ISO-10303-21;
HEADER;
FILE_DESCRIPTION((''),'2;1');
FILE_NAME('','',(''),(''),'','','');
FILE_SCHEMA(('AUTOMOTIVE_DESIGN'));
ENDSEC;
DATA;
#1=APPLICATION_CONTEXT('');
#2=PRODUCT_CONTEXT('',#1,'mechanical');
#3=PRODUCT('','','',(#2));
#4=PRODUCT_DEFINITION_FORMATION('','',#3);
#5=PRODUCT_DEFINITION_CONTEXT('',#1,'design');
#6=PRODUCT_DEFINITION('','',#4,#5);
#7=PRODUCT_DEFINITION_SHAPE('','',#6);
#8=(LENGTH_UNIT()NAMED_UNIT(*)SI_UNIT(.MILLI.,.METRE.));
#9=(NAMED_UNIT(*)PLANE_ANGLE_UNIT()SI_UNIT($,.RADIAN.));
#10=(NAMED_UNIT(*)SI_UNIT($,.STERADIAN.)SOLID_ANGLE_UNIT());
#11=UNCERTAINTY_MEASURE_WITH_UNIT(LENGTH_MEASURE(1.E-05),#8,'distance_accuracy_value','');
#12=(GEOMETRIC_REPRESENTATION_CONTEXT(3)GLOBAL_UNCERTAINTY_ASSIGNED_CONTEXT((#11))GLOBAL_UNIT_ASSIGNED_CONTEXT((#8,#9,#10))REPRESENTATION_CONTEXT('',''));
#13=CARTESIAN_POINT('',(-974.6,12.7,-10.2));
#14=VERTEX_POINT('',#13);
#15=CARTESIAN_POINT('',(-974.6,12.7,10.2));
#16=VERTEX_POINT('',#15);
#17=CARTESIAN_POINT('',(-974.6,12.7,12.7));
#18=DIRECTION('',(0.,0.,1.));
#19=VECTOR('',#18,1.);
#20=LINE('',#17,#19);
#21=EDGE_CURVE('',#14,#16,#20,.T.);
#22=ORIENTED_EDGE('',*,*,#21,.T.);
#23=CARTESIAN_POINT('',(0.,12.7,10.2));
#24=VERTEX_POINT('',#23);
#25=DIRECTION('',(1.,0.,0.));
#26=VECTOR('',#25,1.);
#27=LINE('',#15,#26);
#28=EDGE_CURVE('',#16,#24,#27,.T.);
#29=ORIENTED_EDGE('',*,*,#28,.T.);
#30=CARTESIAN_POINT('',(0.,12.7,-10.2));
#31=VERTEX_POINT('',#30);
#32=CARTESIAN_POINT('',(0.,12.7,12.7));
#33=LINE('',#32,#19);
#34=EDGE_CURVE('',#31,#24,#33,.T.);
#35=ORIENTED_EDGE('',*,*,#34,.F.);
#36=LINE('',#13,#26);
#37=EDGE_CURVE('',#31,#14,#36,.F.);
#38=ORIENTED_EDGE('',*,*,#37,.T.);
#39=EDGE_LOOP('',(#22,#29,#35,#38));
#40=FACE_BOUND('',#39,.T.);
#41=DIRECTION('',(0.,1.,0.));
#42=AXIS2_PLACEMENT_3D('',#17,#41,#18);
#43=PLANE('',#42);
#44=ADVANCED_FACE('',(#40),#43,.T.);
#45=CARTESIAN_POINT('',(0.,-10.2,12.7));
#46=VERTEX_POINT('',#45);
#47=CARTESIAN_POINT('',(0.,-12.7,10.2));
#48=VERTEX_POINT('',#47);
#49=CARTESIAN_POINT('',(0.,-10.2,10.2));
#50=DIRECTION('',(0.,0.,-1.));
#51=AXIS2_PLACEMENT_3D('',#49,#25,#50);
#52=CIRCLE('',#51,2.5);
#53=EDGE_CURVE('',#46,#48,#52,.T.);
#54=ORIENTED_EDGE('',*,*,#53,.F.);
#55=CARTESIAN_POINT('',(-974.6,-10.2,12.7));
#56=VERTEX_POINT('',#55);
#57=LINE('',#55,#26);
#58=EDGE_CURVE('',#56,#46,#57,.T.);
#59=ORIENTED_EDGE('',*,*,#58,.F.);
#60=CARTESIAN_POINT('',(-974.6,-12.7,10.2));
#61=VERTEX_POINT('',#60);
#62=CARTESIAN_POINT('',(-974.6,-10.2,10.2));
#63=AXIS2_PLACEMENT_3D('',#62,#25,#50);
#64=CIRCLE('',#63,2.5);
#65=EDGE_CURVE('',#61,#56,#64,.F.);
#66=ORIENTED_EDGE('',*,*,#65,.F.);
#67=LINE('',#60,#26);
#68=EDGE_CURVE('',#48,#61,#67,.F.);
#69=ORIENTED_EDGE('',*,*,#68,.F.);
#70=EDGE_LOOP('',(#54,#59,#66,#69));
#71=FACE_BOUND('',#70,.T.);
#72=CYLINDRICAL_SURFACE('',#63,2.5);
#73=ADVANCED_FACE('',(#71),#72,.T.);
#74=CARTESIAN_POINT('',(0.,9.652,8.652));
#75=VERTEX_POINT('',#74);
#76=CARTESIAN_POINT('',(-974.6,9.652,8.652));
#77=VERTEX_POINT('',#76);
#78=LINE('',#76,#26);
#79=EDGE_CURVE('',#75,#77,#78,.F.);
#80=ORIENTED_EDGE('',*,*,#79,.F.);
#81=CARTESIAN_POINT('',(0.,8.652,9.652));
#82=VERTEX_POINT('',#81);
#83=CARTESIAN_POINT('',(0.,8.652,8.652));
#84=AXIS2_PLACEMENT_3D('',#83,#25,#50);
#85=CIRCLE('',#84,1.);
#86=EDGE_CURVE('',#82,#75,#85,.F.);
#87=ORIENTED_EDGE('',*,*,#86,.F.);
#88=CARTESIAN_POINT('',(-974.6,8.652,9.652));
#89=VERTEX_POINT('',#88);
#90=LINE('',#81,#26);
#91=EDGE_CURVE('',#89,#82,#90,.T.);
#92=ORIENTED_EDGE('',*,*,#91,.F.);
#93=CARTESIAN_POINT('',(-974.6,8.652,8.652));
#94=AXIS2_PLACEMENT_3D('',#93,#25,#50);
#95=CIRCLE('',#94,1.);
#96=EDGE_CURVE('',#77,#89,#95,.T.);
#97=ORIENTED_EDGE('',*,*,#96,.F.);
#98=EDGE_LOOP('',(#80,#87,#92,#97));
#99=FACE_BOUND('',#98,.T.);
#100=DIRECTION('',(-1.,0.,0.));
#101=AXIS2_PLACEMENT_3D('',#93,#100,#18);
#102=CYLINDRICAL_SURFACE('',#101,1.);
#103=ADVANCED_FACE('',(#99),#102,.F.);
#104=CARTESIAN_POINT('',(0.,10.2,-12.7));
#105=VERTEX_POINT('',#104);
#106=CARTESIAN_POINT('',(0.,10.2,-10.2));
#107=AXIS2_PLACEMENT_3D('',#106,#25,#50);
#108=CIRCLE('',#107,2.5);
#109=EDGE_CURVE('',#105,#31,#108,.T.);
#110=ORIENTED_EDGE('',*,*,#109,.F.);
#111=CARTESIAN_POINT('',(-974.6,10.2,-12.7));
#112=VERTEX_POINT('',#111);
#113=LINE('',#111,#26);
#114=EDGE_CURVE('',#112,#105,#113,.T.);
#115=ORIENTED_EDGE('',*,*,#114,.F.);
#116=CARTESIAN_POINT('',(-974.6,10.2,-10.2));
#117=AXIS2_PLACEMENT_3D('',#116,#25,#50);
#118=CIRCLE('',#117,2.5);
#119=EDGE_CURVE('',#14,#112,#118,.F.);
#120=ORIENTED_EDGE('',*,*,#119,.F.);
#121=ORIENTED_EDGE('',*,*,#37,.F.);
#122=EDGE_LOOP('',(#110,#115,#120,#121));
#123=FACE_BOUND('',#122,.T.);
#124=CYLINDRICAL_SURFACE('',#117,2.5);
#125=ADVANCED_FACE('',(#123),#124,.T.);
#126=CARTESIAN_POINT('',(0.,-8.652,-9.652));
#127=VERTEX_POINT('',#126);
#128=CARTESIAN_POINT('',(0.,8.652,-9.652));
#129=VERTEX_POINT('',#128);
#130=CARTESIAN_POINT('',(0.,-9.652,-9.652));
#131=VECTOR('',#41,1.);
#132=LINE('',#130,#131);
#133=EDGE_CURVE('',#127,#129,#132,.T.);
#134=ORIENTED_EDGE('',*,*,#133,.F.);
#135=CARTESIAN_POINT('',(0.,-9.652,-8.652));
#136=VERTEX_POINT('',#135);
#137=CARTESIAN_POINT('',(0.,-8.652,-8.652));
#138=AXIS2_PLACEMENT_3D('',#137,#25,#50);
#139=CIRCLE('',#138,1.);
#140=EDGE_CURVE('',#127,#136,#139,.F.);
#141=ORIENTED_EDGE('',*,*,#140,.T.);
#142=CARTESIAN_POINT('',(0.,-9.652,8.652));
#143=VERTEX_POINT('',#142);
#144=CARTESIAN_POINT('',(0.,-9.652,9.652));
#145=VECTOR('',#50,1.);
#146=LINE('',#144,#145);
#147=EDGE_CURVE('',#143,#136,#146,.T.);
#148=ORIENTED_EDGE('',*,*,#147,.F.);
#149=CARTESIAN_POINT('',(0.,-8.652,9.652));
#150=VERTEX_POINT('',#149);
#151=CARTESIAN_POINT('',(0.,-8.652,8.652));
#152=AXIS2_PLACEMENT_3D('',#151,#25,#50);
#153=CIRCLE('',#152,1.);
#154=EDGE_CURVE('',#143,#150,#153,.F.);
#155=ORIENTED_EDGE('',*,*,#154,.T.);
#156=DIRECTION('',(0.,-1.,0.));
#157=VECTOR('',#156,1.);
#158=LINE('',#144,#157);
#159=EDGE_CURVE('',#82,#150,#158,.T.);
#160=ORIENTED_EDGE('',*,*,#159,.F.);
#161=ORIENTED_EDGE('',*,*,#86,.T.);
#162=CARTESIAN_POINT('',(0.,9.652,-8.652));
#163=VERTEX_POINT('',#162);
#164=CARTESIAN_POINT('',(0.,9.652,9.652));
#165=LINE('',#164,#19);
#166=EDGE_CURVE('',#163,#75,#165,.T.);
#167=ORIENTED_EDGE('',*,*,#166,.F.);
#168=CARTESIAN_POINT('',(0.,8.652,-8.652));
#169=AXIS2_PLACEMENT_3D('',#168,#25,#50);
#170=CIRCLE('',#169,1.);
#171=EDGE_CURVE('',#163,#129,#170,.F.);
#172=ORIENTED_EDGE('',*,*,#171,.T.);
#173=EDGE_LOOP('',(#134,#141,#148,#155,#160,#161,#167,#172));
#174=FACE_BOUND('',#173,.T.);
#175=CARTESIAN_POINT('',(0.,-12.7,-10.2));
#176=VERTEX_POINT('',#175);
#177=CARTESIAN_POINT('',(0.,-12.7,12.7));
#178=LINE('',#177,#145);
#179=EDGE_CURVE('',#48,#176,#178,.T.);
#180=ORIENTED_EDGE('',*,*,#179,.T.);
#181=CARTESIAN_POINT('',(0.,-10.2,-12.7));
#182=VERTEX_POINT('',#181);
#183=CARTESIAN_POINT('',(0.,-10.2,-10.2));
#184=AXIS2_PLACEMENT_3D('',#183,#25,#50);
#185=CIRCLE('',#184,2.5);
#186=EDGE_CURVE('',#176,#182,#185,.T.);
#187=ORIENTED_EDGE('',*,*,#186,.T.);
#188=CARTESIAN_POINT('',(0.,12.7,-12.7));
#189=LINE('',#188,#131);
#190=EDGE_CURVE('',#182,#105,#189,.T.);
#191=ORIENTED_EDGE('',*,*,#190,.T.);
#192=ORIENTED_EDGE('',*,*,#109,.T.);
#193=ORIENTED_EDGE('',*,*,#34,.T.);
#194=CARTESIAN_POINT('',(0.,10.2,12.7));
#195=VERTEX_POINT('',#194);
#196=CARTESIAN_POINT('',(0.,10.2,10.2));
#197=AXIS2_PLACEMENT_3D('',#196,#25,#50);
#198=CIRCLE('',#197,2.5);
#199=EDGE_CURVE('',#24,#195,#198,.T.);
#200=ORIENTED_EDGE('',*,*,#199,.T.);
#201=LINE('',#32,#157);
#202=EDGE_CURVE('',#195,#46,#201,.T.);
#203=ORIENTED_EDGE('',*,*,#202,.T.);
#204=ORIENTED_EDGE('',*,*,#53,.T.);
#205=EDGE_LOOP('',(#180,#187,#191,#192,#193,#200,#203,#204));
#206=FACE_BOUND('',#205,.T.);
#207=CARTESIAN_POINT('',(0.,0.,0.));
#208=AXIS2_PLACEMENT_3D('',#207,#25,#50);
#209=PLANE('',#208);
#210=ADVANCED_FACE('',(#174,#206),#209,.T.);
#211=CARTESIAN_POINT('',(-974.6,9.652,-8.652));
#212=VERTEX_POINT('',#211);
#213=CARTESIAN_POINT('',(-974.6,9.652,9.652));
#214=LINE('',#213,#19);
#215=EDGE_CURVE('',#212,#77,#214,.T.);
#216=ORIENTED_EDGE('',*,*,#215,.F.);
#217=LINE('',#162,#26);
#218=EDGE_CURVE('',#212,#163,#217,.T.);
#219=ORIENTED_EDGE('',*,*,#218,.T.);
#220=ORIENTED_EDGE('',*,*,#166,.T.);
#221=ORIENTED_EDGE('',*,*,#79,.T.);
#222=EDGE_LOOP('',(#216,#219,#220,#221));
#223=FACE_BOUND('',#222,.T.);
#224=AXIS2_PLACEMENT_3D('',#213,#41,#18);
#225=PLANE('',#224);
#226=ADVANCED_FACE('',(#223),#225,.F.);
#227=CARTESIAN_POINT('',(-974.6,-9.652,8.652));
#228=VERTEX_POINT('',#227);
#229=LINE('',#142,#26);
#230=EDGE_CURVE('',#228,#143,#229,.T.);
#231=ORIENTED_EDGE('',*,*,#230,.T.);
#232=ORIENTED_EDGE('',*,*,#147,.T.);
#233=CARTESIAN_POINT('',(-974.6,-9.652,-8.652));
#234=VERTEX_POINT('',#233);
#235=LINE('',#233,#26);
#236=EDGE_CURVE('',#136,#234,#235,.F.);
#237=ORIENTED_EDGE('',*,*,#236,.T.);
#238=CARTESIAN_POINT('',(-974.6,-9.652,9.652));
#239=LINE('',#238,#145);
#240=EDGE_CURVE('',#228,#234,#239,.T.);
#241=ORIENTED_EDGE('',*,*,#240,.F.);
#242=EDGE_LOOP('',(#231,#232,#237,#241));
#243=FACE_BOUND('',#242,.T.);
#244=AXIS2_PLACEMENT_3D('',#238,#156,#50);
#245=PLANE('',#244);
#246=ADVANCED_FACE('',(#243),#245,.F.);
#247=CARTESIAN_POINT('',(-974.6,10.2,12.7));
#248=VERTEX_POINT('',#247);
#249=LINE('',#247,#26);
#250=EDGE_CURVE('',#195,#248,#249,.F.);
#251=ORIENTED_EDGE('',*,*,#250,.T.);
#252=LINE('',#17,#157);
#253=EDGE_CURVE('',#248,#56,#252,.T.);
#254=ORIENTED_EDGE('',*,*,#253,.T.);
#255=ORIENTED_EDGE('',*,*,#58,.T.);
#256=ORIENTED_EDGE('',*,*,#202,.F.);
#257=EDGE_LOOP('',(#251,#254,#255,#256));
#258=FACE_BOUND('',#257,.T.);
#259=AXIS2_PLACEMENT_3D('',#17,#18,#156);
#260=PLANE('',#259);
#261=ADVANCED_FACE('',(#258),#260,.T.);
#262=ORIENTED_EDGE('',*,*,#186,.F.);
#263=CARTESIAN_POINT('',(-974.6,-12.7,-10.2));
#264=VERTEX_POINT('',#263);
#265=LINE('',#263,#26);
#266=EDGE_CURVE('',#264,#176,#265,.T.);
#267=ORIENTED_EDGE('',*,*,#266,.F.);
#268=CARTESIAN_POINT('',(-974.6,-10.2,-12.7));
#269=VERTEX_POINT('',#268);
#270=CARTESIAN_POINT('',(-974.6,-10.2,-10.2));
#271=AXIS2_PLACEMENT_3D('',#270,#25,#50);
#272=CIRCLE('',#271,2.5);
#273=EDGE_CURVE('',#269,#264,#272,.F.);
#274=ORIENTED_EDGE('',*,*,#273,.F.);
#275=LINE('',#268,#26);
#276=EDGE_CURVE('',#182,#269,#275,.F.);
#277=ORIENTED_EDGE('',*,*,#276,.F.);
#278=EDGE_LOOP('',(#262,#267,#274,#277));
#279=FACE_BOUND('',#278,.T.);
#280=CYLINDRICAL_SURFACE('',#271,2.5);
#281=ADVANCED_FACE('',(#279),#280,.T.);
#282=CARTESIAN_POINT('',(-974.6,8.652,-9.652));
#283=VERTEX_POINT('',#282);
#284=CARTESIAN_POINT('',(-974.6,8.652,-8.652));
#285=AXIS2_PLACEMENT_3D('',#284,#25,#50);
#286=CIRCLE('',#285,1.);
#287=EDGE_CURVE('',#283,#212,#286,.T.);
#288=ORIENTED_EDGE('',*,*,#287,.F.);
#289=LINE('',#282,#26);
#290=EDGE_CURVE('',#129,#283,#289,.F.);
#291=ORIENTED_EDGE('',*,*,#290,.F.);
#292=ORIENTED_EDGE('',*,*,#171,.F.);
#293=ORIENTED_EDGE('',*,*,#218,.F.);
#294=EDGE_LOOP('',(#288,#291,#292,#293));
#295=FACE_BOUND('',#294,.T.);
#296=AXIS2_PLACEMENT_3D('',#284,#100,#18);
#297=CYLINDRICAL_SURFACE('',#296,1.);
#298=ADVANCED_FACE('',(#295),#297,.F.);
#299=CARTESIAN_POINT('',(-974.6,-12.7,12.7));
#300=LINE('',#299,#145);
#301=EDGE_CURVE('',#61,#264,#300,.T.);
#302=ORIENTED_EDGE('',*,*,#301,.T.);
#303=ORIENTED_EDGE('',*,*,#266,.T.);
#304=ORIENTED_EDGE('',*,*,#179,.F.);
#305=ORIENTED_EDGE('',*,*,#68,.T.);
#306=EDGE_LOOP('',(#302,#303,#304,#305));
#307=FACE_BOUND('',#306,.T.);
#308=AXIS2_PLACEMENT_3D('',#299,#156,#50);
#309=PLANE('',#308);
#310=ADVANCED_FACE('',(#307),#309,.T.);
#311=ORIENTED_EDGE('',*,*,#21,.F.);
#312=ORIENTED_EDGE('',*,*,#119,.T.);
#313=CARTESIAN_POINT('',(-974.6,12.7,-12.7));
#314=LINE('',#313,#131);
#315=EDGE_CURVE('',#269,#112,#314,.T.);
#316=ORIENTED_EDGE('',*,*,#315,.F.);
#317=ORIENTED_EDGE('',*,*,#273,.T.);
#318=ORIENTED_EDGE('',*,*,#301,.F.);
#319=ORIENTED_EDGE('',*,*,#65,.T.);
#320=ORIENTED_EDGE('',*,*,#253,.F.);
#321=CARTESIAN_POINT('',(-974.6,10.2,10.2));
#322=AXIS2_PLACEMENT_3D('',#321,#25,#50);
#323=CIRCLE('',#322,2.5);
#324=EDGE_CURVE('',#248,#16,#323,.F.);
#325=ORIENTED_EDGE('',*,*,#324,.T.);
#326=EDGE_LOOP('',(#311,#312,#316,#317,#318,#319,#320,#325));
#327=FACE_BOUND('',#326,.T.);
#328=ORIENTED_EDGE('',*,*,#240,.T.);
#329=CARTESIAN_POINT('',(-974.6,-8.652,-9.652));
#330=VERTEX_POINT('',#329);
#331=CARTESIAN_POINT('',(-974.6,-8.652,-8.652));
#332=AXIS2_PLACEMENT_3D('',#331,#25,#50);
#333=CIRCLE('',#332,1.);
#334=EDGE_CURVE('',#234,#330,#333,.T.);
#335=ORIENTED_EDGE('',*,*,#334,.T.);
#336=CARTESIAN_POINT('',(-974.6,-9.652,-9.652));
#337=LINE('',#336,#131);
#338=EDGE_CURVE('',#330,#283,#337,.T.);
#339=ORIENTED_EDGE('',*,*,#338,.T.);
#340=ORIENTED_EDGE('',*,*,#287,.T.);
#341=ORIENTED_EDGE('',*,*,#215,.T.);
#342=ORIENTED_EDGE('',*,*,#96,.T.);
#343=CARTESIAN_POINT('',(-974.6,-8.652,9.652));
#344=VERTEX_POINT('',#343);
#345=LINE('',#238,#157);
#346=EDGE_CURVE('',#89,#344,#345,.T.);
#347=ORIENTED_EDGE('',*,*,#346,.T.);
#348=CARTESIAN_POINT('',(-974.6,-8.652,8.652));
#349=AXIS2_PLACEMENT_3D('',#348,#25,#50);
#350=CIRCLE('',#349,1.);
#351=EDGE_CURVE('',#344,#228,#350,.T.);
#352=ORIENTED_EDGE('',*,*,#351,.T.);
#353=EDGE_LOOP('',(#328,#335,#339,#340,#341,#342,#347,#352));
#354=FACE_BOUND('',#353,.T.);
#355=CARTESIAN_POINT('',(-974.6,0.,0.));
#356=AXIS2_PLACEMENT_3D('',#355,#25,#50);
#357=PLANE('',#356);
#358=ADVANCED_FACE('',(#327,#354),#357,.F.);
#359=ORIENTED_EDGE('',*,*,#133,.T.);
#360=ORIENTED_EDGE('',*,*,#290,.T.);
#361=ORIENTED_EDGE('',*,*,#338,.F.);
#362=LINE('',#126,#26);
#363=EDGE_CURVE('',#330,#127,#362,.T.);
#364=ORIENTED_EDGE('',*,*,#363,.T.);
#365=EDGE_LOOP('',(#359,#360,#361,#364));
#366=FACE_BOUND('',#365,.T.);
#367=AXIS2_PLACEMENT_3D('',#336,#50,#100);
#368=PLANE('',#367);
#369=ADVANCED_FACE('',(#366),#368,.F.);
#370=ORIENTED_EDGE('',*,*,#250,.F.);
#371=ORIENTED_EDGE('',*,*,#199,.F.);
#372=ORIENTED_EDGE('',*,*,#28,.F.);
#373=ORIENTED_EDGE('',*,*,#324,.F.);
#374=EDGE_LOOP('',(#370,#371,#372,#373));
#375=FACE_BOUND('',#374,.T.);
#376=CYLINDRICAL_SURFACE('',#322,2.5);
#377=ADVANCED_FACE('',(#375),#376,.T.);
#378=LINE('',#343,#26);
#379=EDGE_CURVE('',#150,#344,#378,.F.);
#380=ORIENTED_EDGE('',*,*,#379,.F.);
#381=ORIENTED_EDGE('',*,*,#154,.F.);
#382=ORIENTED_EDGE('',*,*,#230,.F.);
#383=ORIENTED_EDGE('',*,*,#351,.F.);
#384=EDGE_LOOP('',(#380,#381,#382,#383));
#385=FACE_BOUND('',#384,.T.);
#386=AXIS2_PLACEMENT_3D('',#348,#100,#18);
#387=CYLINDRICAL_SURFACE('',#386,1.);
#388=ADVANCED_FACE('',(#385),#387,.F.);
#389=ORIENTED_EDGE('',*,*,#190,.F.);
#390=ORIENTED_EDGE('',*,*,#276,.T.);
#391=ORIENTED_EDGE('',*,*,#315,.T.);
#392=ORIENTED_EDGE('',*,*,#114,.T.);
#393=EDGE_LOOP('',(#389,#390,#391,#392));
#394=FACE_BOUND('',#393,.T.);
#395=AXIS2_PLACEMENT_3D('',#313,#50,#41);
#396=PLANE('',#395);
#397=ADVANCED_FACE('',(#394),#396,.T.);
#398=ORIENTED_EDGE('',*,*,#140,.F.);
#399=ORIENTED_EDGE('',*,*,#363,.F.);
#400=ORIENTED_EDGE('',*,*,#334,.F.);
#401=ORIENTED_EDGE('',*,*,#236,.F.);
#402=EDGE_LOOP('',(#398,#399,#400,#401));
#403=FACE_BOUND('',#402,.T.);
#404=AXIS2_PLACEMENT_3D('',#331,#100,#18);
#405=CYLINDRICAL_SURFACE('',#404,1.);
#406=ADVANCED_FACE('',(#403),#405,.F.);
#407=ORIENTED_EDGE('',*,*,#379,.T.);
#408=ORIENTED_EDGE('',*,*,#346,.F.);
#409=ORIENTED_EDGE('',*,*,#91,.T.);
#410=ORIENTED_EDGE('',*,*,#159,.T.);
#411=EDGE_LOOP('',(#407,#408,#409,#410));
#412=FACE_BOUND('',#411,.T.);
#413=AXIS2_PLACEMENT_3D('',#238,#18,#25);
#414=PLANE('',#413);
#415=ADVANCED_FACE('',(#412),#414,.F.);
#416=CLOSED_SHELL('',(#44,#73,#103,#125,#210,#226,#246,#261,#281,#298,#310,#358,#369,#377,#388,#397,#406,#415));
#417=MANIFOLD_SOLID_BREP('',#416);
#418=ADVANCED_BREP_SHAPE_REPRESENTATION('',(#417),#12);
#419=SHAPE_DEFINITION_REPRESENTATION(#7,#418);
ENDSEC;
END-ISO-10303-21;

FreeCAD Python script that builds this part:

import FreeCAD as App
import Part
import Sketcher


def edges_at(feature, points):
    """Names of the edges that pass closest to the given points."""
    edges = feature.Shape.Edges
    near = lambda p: min(range(len(edges)), key=lambda i: edges[i].distToShape(Part.Vertex(*p))[0])
    return sorted({f"Edge{near(p) + 1}" for p in points})

doc = App.newDocument("Part")
body = doc.addObject("PartDesign::Body", "Body")

sketch1 = body.newObject("Sketcher::SketchObject", "Sketch")
sketch1.AttachmentSupport = (doc.getObject("YZ_Plane"), [""])
sketch1.MapMode = "FlatFace"
sketch1.addGeometry([
    Part.LineSegment(App.Vector(12.7, 12.7, 0), App.Vector(-12.7, 12.7, 0)),
    Part.LineSegment(App.Vector(-12.7, 12.7, 0), App.Vector(-12.7, -12.7, 0)),
    Part.LineSegment(App.Vector(-12.7, -12.7, 0), App.Vector(12.7, -12.7, 0)),
    Part.LineSegment(App.Vector(12.7, -12.7, 0), App.Vector(12.7, 12.7, 0)),
    Part.LineSegment(App.Vector(-9.652, -9.652, 0), App.Vector(-9.652, 9.652, 0)),
    Part.LineSegment(App.Vector(-9.652, 9.652, 0), App.Vector(9.652, 9.652, 0)),
    Part.LineSegment(App.Vector(9.652, 9.652, 0), App.Vector(9.652, -9.652, 0)),
    Part.LineSegment(App.Vector(9.652, -9.652, 0), App.Vector(-9.652, -9.652, 0)),
], False)
sketch1.addConstraint([
    Sketcher.Constraint("Coincident", 0, 2, 1, 1),
    Sketcher.Constraint("Coincident", 1, 2, 2, 1),
    Sketcher.Constraint("Coincident", 2, 2, 3, 1),
    Sketcher.Constraint("Coincident", 3, 2, 0, 1),
    Sketcher.Constraint("Coincident", 4, 2, 5, 1),
    Sketcher.Constraint("Coincident", 5, 2, 6, 1),
    Sketcher.Constraint("Coincident", 6, 2, 7, 1),
    Sketcher.Constraint("Coincident", 7, 2, 4, 1),
    Sketcher.Constraint("Horizontal", 0),
    Sketcher.Constraint("Vertical", 1),
    Sketcher.Constraint("Horizontal", 2),
    Sketcher.Constraint("Vertical", 3),
    Sketcher.Constraint("Vertical", 4),
    Sketcher.Constraint("Horizontal", 5),
    Sketcher.Constraint("Vertical", 6),
    Sketcher.Constraint("Horizontal", 7),
    Sketcher.Constraint("Symmetric", 0, 2, 2, 2, -1, 1),
    Sketcher.Constraint("Symmetric", 4, 2, 6, 2, -1, 1),
    Sketcher.Constraint("Equal", 2, 1),
    Sketcher.Constraint("Equal", 7, 4),
    Sketcher.Constraint("DistanceX", 0, 2, 0, 1, 25.4),
    Sketcher.Constraint("DistanceX", 5, 1, 5, 2, 19.304),
])
pad1 = body.newObject("PartDesign::Pad", "Pad")
pad1.Profile = sketch1
pad1.Length = 974.6
pad1.Reversed = True
doc.recompute()

fillet = body.newObject("PartDesign::Fillet", "Fillet")
fillet.Base = (pad1, edges_at(pad1, [
    (-487.3, -12.7, -12.7),
    (-487.3, -12.7, 12.7),
    (-487.3, 12.7, 12.7),
    (-487.3, 12.7, -12.7),
]))
fillet.Radius = 2.5
doc.recompute()

fillet2 = body.newObject("PartDesign::Fillet", "Fillet001")
fillet2.Base = (fillet, edges_at(fillet, [
    (-487.3, 9.652, -9.652),
    (-487.3, -9.652, -9.652),
    (-487.3, -9.652, 9.652),
    (-487.3, 9.652, 9.652),
]))
fillet2.Radius = 1

doc.recompute()
